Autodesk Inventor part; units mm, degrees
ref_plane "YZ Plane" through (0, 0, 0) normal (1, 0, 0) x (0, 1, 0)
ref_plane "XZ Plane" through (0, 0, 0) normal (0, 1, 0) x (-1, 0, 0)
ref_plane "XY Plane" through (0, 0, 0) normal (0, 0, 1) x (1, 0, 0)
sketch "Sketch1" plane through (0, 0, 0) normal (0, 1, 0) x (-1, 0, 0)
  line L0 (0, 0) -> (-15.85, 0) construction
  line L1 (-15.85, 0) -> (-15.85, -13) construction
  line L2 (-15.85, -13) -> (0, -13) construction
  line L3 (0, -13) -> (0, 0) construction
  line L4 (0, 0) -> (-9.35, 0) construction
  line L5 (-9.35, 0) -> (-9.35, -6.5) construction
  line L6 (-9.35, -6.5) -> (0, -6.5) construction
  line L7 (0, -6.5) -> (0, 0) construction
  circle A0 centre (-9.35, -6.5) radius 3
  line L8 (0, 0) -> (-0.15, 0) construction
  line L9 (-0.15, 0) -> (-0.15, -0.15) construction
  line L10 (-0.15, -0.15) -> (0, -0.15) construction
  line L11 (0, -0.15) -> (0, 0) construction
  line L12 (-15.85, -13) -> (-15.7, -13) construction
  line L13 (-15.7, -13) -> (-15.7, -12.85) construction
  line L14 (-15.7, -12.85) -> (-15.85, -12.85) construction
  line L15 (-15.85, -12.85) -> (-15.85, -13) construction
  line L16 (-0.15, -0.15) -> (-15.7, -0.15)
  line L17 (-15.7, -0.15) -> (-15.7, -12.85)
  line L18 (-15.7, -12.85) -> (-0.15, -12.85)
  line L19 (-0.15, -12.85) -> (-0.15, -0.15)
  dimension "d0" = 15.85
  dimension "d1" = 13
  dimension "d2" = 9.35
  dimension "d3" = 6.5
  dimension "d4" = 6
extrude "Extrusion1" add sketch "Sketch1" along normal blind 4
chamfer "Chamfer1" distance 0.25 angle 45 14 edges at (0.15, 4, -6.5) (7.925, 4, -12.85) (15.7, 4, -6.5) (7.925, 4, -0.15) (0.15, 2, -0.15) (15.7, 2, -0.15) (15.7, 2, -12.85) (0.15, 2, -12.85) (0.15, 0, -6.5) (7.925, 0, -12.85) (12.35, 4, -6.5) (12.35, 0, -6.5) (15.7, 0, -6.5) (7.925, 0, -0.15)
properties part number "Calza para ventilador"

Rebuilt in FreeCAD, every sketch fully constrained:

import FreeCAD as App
import Part
import Sketcher

V = App.Vector

doc = App.newDocument("Part")
body = doc.addObject("PartDesign::Body", "Body")

sketch1 = body.newObject("Sketcher::SketchObject", "Sketch")
sketch1.AttachmentSupport = (doc.getObject("XZ_Plane"), [""])
sketch1.MapMode = "FlatFace"
sketch1.addGeometry([
    Part.LineSegment(V(0.15, -12.85, 0), V(0.15, -0.15, 0)),
    Part.LineSegment(V(0.15, -0.15, 0), V(15.7, -0.15, 0)),
    Part.LineSegment(V(15.7, -0.15, 0), V(15.7, -12.85, 0)),
    Part.LineSegment(V(15.7, -12.85, 0), V(0.15, -12.85, 0)),
    Part.Circle(V(9.35, -6.5, 0), V(0, 0, 1), 3),
], False)
sketch1.addConstraint([
    Sketcher.Constraint("Coincident", 0, 2, 1, 1),
    Sketcher.Constraint("Coincident", 1, 2, 2, 1),
    Sketcher.Constraint("Coincident", 2, 2, 3, 1),
    Sketcher.Constraint("Coincident", 3, 2, 0, 1),
    Sketcher.Constraint("Vertical", 0),
    Sketcher.Constraint("Horizontal", 1),
    Sketcher.Constraint("Vertical", 2),
    Sketcher.Constraint("Horizontal", 3),
    Sketcher.Constraint("Diameter", 4, 6.0),
    Sketcher.Constraint("DistanceY", 4, 3, -1, 1, 6.5),
    Sketcher.Constraint("DistanceX", -1, 1, 4, 3, 9.35),
    Sketcher.Constraint("DistanceY", 0, 1, 0, 2, 12.7),
    Sketcher.Constraint("DistanceX", 1, 1, 1, 2, 15.55),
    Sketcher.Constraint("DistanceX", -1, 1, 1, 2, 15.7),
    Sketcher.Constraint("DistanceY", 0, 2, -1, 1, 0.15),
])
pad1 = body.newObject("PartDesign::Pad", "Pad")
pad1.Profile = sketch1
pad1.Length = 4
pad1.Reversed = True
doc.recompute()

chamfer = body.newObject("PartDesign::Chamfer", "Chamfer")
chamfer.Base = (pad1, ["Edge1"])
chamfer.UseAllEdges = True
chamfer.Size = 0.25

doc.recompute()
